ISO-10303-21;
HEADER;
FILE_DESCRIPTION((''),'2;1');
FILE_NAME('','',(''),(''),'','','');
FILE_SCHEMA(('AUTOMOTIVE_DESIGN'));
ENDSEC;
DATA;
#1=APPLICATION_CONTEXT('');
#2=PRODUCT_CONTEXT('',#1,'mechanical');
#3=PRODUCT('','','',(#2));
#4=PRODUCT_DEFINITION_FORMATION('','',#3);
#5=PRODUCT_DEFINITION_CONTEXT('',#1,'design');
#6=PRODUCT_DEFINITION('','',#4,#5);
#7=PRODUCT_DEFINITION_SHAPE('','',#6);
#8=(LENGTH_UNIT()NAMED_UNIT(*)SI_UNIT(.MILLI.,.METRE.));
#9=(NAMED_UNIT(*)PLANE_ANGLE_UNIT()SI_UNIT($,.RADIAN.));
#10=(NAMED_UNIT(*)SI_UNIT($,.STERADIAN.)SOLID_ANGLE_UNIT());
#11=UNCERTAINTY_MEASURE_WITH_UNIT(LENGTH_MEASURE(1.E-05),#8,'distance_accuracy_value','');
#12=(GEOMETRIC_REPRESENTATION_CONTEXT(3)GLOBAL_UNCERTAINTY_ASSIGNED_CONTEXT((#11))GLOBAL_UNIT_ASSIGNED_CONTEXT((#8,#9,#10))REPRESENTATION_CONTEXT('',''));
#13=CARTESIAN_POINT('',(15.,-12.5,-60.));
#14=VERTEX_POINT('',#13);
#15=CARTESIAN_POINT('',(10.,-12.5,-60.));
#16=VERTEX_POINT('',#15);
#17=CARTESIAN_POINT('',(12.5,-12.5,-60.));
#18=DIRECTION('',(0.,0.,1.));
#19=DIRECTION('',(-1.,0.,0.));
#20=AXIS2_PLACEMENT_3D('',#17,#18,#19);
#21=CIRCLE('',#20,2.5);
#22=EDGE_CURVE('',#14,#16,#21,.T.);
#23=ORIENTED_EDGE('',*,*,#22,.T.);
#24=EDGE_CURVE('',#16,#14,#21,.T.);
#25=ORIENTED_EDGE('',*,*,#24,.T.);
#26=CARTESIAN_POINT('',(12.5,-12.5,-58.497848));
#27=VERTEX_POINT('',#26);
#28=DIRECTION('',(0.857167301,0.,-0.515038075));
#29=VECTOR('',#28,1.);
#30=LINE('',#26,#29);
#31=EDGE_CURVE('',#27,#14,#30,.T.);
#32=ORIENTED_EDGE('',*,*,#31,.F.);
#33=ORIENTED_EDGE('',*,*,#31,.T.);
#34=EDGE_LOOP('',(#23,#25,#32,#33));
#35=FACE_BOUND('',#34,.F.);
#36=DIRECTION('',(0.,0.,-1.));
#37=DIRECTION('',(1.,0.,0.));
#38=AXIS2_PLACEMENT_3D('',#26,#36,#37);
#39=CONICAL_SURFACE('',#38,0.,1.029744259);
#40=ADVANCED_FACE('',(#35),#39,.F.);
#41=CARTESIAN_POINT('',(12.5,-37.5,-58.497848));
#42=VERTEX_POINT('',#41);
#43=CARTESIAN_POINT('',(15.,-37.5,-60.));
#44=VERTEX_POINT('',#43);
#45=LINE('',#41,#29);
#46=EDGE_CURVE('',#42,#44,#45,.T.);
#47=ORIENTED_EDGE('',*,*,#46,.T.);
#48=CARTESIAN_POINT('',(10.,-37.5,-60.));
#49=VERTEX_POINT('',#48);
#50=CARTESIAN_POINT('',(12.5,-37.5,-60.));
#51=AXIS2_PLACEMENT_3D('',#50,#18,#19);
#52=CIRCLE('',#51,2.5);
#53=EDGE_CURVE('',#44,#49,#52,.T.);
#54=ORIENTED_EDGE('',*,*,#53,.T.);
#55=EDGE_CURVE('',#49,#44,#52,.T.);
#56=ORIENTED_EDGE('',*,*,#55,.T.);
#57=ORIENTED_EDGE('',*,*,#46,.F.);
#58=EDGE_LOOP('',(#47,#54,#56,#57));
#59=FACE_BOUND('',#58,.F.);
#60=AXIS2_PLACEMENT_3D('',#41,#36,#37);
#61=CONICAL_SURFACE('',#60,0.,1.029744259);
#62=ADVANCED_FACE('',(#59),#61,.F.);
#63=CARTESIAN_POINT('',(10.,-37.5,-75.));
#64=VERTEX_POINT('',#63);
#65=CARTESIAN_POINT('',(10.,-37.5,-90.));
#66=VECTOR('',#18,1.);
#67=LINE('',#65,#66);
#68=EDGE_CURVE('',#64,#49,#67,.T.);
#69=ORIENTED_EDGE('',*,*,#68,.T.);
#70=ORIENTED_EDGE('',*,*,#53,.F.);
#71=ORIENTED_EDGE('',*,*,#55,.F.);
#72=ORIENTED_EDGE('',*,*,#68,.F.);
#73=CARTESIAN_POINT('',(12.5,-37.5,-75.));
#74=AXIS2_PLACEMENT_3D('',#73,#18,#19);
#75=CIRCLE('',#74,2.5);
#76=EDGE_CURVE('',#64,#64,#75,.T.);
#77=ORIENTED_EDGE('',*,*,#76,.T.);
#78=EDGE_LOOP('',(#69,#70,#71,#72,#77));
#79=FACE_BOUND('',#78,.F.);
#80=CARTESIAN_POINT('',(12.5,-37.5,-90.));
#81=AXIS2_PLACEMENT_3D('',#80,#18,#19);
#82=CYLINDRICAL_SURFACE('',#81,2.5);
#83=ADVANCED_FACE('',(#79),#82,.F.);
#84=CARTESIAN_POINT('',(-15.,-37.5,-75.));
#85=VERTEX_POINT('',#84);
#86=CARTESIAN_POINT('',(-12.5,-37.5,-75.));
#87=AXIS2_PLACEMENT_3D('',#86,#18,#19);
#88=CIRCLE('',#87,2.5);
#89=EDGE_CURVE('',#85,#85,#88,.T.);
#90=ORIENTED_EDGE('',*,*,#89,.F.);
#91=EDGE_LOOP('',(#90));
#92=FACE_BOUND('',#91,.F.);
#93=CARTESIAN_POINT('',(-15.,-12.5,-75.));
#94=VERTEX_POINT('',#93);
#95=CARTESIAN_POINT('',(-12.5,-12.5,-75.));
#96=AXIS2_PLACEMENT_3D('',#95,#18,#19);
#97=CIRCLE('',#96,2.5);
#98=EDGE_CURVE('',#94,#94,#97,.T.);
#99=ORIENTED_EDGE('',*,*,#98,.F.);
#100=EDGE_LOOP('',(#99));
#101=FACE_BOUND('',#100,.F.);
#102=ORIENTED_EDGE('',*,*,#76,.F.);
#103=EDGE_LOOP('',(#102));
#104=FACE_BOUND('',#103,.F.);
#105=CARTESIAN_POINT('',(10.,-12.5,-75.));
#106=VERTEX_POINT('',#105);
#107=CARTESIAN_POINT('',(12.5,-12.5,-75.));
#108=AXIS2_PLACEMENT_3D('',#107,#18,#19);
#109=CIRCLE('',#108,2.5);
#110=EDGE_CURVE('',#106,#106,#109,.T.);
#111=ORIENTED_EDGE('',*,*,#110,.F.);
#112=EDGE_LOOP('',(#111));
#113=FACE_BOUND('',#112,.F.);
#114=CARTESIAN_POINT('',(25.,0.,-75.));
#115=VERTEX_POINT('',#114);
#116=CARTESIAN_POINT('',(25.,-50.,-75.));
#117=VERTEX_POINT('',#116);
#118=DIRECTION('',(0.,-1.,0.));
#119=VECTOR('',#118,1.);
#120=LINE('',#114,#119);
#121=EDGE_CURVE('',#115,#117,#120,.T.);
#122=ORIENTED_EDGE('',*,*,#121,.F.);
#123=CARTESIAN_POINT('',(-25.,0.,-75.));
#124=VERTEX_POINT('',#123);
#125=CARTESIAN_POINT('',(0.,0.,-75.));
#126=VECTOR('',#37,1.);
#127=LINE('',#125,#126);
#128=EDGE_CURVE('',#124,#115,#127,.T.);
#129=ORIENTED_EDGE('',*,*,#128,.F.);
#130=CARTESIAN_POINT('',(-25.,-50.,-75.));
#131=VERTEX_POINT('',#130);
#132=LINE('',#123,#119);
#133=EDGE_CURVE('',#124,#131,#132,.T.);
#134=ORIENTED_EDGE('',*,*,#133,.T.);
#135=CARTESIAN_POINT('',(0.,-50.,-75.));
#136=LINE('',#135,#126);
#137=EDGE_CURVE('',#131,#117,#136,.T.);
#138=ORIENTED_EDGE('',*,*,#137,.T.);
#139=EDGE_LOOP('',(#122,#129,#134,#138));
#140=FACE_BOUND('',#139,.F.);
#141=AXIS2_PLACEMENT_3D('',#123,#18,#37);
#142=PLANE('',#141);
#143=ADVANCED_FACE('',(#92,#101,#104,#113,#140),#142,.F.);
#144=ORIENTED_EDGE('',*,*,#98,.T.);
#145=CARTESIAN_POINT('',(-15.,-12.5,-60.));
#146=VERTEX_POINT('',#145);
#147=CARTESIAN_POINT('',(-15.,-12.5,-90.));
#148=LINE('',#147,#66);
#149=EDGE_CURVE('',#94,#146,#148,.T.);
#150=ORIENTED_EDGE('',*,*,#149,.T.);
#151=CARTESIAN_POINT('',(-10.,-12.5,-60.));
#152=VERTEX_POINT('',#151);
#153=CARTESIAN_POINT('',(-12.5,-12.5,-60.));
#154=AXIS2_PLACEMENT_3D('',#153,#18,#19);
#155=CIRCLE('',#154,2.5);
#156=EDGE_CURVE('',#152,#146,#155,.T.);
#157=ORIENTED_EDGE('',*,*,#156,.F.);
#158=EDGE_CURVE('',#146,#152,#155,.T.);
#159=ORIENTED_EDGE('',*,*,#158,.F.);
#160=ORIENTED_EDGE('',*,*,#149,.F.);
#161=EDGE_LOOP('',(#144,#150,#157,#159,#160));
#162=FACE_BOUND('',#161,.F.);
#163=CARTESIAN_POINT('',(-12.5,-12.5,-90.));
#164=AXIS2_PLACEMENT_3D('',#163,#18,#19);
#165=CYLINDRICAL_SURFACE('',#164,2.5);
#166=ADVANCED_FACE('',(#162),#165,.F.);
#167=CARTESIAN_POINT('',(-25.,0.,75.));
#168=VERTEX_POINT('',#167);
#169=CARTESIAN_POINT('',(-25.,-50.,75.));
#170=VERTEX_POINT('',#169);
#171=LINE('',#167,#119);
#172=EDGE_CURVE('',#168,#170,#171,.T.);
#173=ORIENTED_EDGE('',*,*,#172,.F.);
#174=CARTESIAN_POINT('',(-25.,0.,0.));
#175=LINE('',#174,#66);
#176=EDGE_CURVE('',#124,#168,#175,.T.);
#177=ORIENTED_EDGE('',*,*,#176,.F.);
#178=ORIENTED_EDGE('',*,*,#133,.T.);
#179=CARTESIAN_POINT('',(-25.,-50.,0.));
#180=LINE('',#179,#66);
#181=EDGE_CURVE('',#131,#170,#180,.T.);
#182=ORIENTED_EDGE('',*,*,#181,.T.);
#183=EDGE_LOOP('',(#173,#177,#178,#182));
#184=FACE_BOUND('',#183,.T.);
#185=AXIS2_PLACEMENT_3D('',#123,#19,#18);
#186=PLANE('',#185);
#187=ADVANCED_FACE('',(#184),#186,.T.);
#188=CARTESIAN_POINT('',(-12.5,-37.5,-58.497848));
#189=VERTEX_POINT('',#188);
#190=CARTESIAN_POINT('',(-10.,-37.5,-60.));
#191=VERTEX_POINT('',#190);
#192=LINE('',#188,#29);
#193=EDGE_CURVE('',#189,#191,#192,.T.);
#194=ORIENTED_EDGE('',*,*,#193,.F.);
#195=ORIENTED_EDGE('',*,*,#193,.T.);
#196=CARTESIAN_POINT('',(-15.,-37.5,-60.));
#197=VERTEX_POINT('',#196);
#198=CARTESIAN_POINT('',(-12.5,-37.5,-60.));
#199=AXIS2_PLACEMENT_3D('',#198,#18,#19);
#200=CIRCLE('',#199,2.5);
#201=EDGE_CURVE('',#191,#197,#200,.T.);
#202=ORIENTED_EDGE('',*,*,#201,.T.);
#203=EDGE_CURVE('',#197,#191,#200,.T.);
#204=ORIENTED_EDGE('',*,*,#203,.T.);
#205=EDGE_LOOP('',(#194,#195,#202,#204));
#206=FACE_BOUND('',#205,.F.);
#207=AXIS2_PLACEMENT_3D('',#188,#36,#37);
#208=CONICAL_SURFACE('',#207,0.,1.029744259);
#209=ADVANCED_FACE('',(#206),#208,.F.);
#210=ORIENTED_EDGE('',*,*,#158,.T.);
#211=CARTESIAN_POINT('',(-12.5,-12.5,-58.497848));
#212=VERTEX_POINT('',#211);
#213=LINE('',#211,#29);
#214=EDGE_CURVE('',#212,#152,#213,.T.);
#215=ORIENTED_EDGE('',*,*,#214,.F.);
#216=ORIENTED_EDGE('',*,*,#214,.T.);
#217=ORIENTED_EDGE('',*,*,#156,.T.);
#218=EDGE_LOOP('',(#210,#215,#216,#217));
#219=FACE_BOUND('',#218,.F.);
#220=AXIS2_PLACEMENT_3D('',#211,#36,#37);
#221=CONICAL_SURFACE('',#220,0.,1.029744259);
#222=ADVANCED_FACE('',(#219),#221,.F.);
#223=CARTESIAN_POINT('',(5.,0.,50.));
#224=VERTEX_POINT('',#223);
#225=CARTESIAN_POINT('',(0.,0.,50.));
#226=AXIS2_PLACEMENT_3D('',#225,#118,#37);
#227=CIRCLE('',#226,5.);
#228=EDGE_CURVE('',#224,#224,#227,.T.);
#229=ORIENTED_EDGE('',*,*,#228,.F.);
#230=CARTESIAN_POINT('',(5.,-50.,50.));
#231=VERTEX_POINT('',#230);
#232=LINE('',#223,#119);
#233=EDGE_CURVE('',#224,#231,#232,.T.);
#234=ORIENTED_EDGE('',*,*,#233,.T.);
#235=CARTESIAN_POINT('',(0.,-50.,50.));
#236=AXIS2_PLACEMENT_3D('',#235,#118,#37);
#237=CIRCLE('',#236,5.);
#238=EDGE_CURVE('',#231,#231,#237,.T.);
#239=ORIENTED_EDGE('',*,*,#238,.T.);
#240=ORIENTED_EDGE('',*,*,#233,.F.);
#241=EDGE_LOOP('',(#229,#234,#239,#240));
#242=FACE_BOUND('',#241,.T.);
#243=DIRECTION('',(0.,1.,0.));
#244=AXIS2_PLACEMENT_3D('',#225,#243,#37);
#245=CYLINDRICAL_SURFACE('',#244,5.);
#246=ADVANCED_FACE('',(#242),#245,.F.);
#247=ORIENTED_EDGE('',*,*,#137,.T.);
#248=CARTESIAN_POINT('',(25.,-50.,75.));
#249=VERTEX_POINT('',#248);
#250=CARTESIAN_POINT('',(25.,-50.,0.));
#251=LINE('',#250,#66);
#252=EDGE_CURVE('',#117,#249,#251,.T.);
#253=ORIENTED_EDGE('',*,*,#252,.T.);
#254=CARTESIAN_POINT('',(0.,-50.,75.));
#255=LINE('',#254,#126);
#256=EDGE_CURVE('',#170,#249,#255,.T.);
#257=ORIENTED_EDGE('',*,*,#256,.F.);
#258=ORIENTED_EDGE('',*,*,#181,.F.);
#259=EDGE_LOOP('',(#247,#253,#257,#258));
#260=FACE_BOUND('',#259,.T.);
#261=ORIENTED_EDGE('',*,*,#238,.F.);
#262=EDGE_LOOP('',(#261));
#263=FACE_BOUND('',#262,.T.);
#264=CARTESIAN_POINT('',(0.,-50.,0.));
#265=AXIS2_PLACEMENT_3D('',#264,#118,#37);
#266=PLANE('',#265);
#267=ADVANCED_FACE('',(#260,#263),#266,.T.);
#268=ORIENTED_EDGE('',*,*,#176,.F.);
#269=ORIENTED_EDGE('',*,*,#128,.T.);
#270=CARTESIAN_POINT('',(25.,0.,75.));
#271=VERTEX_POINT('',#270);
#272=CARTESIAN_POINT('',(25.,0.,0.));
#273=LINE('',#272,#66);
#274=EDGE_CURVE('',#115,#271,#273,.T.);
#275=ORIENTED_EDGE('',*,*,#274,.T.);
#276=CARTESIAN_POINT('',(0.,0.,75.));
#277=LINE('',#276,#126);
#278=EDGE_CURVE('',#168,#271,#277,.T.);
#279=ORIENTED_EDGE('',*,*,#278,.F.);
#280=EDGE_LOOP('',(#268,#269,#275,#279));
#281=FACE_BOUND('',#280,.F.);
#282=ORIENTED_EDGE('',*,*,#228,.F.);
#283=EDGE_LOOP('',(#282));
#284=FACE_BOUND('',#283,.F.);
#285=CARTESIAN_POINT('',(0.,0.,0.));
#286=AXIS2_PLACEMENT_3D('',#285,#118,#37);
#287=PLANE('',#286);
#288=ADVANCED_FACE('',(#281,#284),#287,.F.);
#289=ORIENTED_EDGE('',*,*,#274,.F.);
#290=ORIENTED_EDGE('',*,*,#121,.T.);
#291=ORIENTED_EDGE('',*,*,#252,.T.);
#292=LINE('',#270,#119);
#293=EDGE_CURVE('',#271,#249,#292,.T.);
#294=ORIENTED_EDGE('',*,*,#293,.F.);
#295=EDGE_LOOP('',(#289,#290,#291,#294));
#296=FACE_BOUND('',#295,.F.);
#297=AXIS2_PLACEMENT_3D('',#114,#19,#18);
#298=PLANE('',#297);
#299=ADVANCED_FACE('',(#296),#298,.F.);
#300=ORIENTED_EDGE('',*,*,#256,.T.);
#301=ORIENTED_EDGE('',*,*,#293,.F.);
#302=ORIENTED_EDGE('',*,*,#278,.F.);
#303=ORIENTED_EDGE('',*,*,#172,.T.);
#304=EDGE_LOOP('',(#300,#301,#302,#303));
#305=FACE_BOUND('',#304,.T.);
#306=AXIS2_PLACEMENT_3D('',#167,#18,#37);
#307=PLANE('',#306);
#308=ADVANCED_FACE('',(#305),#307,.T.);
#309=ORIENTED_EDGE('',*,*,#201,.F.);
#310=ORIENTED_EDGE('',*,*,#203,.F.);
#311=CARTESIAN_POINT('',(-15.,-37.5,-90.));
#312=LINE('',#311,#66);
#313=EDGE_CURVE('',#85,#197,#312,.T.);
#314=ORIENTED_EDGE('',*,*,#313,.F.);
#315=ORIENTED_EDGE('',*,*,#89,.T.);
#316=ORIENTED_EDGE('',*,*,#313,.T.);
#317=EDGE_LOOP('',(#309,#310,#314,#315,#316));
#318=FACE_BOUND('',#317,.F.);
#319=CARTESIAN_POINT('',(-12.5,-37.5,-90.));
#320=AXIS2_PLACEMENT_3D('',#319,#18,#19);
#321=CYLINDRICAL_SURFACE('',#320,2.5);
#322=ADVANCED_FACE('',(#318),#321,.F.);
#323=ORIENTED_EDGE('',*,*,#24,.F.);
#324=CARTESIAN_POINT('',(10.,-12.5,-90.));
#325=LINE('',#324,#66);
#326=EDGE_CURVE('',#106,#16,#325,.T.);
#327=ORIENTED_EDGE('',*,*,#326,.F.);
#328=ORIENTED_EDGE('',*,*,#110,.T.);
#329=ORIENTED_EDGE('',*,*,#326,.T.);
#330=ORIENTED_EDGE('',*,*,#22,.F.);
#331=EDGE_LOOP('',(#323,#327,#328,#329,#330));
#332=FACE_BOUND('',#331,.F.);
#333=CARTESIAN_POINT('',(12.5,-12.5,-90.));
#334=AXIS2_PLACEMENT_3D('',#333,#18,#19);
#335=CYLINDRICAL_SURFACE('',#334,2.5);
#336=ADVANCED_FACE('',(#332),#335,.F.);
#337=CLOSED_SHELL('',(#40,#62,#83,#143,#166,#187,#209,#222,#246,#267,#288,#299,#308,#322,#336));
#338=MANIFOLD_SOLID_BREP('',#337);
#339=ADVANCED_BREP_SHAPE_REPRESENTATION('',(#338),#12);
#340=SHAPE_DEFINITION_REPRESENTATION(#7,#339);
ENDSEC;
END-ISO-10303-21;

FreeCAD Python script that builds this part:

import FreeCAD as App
import Part
import Sketcher

V = App.Vector
Q = App.Units.Quantity

doc = App.newDocument("Part")
body = doc.addObject("PartDesign::Body", "Body")

sketch1 = body.newObject("Sketcher::SketchObject", "Sketch")
sketch1.AttachmentSupport = (doc.getObject("XZ_Plane"), [""])
sketch1.MapMode = "FlatFace"
sketch1.addGeometry(Part.LineSegment(V(-25, 75, 0), V(-25, -75, 0)), False)
sketch1.addGeometry(Part.LineSegment(V(-25, -75, 0), V(25, -75, 0)), False)
sketch1.addGeometry(Part.LineSegment(V(25, -75, 0), V(25, 75, 0)), False)
sketch1.addGeometry(Part.LineSegment(V(25, 75, 0), V(-25, 75, 0)), False)
sketch1.addGeometry(Part.Circle(V(0, 50, 0), V(0, 0, 1), 5), False)
sketch1.addConstraint(Sketcher.Constraint("Coincident", 0, 2, 1, 1))
sketch1.addConstraint(Sketcher.Constraint("Coincident", 1, 2, 2, 1))
sketch1.addConstraint(Sketcher.Constraint("Coincident", 2, 2, 3, 1))
sketch1.addConstraint(Sketcher.Constraint("Coincident", 3, 2, 0, 1))
sketch1.addConstraint(Sketcher.Constraint("Vertical", 0))
sketch1.addConstraint(Sketcher.Constraint("Horizontal", 1))
sketch1.addConstraint(Sketcher.Constraint("Vertical", 2))
sketch1.addConstraint(Sketcher.Constraint("Horizontal", 3))
sketch1.addConstraint(Sketcher.Constraint("Symmetric", 0, 2, 2, 2, -1, 1))
sketch1.addConstraint(Sketcher.Constraint("PointOnObject", 4, 3, -2))
sketch1.addConstraint(Sketcher.Constraint("Diameter", 4, Q("10 mm")))
sketch1.addConstraint(Sketcher.Constraint("DistanceX", 1, 1, 1, 2, Q("50 mm")))
sketch1.addConstraint(Sketcher.Constraint("DistanceY", 0, 2, 0, 1, Q("150 mm")))
sketch1.addConstraint(Sketcher.Constraint("DistanceY", -1, 1, 4, 3, Q("50 mm")))
pad1 = body.newObject("PartDesign::Pad", "Pad")
pad1.Profile = sketch1
pad1.Length = 50

sketch2 = body.newObject("Sketcher::SketchObject", "Sketch001")
sketch2.AttachmentSupport = (doc.getObject("XY_Plane"), [""])
sketch2.MapMode = "FlatFace"
sketch2.AttachmentOffset = App.Placement(V(0, 0, -75), App.Rotation())
sketch2.addGeometry(Part.Circle(V(12.5, -37.5, 0), V(0, 0, 1), 2.5), False)
sketch2.addGeometry(Part.Circle(V(12.5, -12.5, 0), V(0, 0, 1), 2.5), False)
sketch2.addGeometry(Part.Circle(V(-12.5, -12.5, 0), V(0, 0, 1), 2.5), False)
sketch2.addGeometry(Part.Circle(V(-12.5, -37.5, 0), V(0, 0, 1), 2.5), False)
sketch2.addConstraint(Sketcher.Constraint("Equal", 0, 1))
sketch2.addConstraint(Sketcher.Constraint("Equal", 1, 2))
sketch2.addConstraint(Sketcher.Constraint("Equal", 2, 3))
sketch2.addConstraint(Sketcher.Constraint("Symmetric", 1, 3, 2, 3, -2))
sketch2.addConstraint(Sketcher.Constraint("Symmetric", 0, 3, 3, 3, -2))
sketch2.addConstraint(Sketcher.Constraint("Vertical", 0, 3, 1, 3))
sketch2.addConstraint(Sketcher.Constraint("Diameter", 0, Q("5 mm")))
sketch2.addConstraint(Sketcher.Constraint("DistanceY", 0, 3, 1, 3, Q("25 mm")))
sketch2.addConstraint(Sketcher.Constraint("DistanceX", 2, 3, 1, 3, Q("25 mm")))
sketch2.addConstraint(Sketcher.Constraint("DistanceY", 0, 3, -1, 1, Q("37.5 mm")))
doc.recompute()
hole = body.newObject("PartDesign::Hole", "Hole")
hole.Profile = sketch2
hole.ThreadType = "None"
hole.Diameter = 5
hole.DepthType = "Dimension"
hole.Depth = 15
hole.DrillPoint = "Angled"
hole.DrillPointAngle = 118
hole.Reversed = True

doc.recompute()
